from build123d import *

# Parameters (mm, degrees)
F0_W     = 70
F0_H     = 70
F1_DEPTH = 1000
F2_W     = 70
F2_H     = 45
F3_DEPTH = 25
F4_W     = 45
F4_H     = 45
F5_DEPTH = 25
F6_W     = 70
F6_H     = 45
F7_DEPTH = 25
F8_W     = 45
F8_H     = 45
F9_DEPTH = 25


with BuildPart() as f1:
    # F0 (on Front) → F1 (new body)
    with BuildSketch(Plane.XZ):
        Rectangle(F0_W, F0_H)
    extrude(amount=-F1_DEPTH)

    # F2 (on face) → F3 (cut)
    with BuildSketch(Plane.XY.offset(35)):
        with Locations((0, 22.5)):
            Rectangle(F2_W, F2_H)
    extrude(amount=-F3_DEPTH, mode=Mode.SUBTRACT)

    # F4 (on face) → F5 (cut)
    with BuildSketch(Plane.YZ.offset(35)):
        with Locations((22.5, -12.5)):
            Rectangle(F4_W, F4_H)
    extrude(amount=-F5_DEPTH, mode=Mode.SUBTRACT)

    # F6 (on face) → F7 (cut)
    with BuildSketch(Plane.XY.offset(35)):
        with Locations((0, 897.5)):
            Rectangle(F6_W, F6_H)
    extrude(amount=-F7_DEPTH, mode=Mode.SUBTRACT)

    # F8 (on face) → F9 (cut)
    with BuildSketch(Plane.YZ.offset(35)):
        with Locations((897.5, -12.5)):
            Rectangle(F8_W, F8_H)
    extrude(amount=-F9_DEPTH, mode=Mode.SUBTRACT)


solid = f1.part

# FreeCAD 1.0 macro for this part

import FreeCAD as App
import Part
import Sketcher
Q = App.Units.Quantity


def add_polygon(sketch, points):
    """Adds a closed chain of lines whose ends are joined by coincident constraints."""
    first, n = sketch.GeometryCount, len(points)
    for a, b in zip(points, points[1:] + points[:1]):
        sketch.addGeometry(Part.LineSegment(App.Vector(*a, 0), App.Vector(*b, 0)), False)
    for i in range(n):
        sketch.addConstraint(Sketcher.Constraint("Coincident", first + i, 2, first + (i + 1) % n, 1))

doc = App.newDocument("Part")
body = doc.addObject("PartDesign::Body", "Body")

# Sketch on XZ plane
sketch1 = doc.addObject("Sketcher::SketchObject", "Sketch")
body.addObject(sketch1)
sketch1.AttachmentSupport = (doc.XZ_Plane, [""])
sketch1.MapMode = "FlatFace"
add_polygon(sketch1, [(-35, 35), (-35, -35), (35, -35), (35, 35)])  # lines 0-3
sketch1.addConstraint(Sketcher.Constraint("Vertical", 0))
sketch1.addConstraint(Sketcher.Constraint("Horizontal", 1))
sketch1.addConstraint(Sketcher.Constraint("Vertical", 2))
sketch1.addConstraint(Sketcher.Constraint("Horizontal", 3))
sketch1.addConstraint(Sketcher.Constraint("Symmetric", 0, 2, 2, 2, -1, 1))
sketch1.addConstraint(Sketcher.Constraint("Equal", 3, 0))
sketch1.addConstraint(Sketcher.Constraint("DistanceX", 1, 1, 1, 2, Q("70 mm")))
pad1 = doc.addObject("PartDesign::Pad", "Pad")
body.addObject(pad1)
pad1.Profile = sketch1
pad1.Length = 1000
pad1.Reversed = True

# Sketch on XY plane
sketch2 = doc.addObject("Sketcher::SketchObject", "Sketch001")
body.addObject(sketch2)
sketch2.AttachmentSupport = (doc.XY_Plane, [""])
sketch2.MapMode = "FlatFace"
sketch2.AttachmentOffset = App.Placement(App.Vector(0, 0, 35), App.Rotation())
add_polygon(sketch2, [(-35, 45), (-35, 0), (35, 0), (35, 45)])  # lines 0-3
sketch2.addConstraint(Sketcher.Constraint("Vertical", 0))
sketch2.addConstraint(Sketcher.Constraint("Horizontal", 1))
sketch2.addConstraint(Sketcher.Constraint("Vertical", 2))
sketch2.addConstraint(Sketcher.Constraint("Horizontal", 3))
sketch2.addConstraint(Sketcher.Constraint("Symmetric", 0, 2, 1, 2, -1, 1))
sketch2.addConstraint(Sketcher.Constraint("DistanceX", 1, 1, 1, 2, Q("70 mm")))
sketch2.addConstraint(Sketcher.Constraint("DistanceY", 0, 2, 0, 1, Q("45 mm")))
pocket1 = doc.addObject("PartDesign::Pocket", "Pocket")
body.addObject(pocket1)
pocket1.Profile = sketch2
pocket1.Length = 25

# Sketch on YZ plane
sketch3 = doc.addObject("Sketcher::SketchObject", "Sketch002")
body.addObject(sketch3)
sketch3.AttachmentSupport = (doc.YZ_Plane, [""])
sketch3.MapMode = "FlatFace"
sketch3.AttachmentOffset = App.Placement(App.Vector(0, 0, 35), App.Rotation())
add_polygon(sketch3, [(0, 10), (0, -35), (45, -35), (45, 10)])  # lines 0-3
sketch3.addConstraint(Sketcher.Constraint("Vertical", 0))
sketch3.addConstraint(Sketcher.Constraint("Horizontal", 1))
sketch3.addConstraint(Sketcher.Constraint("Vertical", 2))
sketch3.addConstraint(Sketcher.Constraint("Horizontal", 3))
sketch3.addConstraint(Sketcher.Constraint("PointOnObject", 0, 2, -2))
sketch3.addConstraint(Sketcher.Constraint("Equal", 3, 0))
sketch3.addConstraint(Sketcher.Constraint("DistanceX", 1, 1, 1, 2, Q("45 mm")))
sketch3.addConstraint(Sketcher.Constraint("DistanceY", 0, 2, -1, 1, Q("35 mm")))
pocket2 = doc.addObject("PartDesign::Pocket", "Pocket001")
body.addObject(pocket2)
pocket2.Profile = sketch3
pocket2.Length = 25

# Sketch on XY plane
sketch4 = doc.addObject("Sketcher::SketchObject", "Sketch003")
body.addObject(sketch4)
sketch4.AttachmentSupport = (doc.XY_Plane, [""])
sketch4.MapMode = "FlatFace"
sketch4.AttachmentOffset = App.Placement(App.Vector(0, 0, 35), App.Rotation())
add_polygon(sketch4, [(-35, 920), (-35, 875), (35, 875), (35, 920)])  # lines 0-3
sketch4.addConstraint(Sketcher.Constraint("Vertical", 0))
sketch4.addConstraint(Sketcher.Constraint("Horizontal", 1))
sketch4.addConstraint(Sketcher.Constraint("Vertical", 2))
sketch4.addConstraint(Sketcher.Constraint("Horizontal", 3))
sketch4.addConstraint(Sketcher.Constraint("DistanceX", 1, 1, 1, 2, Q("70 mm")))
sketch4.addConstraint(Sketcher.Constraint("DistanceY", 0, 2, 0, 1, Q("45 mm")))
sketch4.addConstraint(Sketcher.Constraint("DistanceX", 0, 2, -1, 1, Q("35 mm")))
sketch4.addConstraint(Sketcher.Constraint("DistanceY", -1, 1, 0, 2, Q("875 mm")))
pocket3 = doc.addObject("PartDesign::Pocket", "Pocket002")
body.addObject(pocket3)
pocket3.Profile = sketch4
pocket3.Length = 25

# Sketch on YZ plane
sketch5 = doc.addObject("Sketcher::SketchObject", "Sketch004")
body.addObject(sketch5)
sketch5.AttachmentSupport = (doc.YZ_Plane, [""])
sketch5.MapMode = "FlatFace"
sketch5.AttachmentOffset = App.Placement(App.Vector(0, 0, 35), App.Rotation())
add_polygon(sketch5, [(875, 10), (875, -35), (920, -35), (920, 10)])  # lines 0-3
sketch5.addConstraint(Sketcher.Constraint("Vertical", 0))
sketch5.addConstraint(Sketcher.Constraint("Horizontal", 1))
sketch5.addConstraint(Sketcher.Constraint("Vertical", 2))
sketch5.addConstraint(Sketcher.Constraint("Horizontal", 3))
sketch5.addConstraint(Sketcher.Constraint("Equal", 3, 0))
sketch5.addConstraint(Sketcher.Constraint("DistanceX", 1, 1, 1, 2, Q("45 mm")))
sketch5.addConstraint(Sketcher.Constraint("DistanceX", -1, 1, 0, 2, Q("875 mm")))
sketch5.addConstraint(Sketcher.Constraint("DistanceY", 0, 2, -1, 1, Q("35 mm")))
pocket4 = doc.addObject("PartDesign::Pocket", "Pocket003")
body.addObject(pocket4)
pocket4.Profile = sketch5
pocket4.Length = 25

doc.recompute()
